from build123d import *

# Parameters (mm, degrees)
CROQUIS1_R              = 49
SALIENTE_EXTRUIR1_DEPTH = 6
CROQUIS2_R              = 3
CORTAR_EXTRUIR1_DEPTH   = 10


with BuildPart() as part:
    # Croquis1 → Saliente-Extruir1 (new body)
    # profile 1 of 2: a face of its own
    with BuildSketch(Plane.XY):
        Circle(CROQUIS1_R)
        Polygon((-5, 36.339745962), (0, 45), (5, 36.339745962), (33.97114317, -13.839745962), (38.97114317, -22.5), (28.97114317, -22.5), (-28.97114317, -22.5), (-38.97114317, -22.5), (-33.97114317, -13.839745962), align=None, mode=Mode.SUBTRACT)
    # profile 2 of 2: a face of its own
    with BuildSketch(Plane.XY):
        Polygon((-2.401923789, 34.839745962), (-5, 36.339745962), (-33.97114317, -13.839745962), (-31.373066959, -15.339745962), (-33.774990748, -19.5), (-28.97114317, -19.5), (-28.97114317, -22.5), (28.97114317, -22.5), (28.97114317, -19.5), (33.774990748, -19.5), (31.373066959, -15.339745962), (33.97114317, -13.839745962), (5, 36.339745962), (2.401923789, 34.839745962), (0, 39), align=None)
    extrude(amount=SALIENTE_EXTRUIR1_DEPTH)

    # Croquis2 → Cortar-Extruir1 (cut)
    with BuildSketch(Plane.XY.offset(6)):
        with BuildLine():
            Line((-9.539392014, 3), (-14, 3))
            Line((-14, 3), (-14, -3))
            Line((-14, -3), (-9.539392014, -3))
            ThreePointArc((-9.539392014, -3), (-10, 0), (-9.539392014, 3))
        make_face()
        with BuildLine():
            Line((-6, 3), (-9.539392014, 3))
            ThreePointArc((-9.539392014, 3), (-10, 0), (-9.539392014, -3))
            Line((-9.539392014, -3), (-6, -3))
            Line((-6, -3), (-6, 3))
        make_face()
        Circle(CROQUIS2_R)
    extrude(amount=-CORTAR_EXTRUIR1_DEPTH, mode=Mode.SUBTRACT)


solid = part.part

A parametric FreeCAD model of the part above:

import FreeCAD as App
import Part
import Sketcher

V = App.Vector
Q = App.Units.Quantity


def add_polygon(sketch, points):
    """Adds a closed chain of lines whose ends are joined by coincident constraints."""
    first, n = sketch.GeometryCount, len(points)
    for a, b in zip(points, points[1:] + points[:1]):
        sketch.addGeometry(Part.LineSegment(App.Vector(*a, 0), App.Vector(*b, 0)), False)
    for i in range(n):
        sketch.addConstraint(Sketcher.Constraint("Coincident", first + i, 2, first + (i + 1) % n, 1))

doc = App.newDocument("Part")
body = doc.addObject("PartDesign::Body", "Body")

# Sketch on XY plane
sketch1 = body.newObject("Sketcher::SketchObject", "Sketch")
sketch1.AttachmentSupport = (doc.getObject("XY_Plane"), [""])
sketch1.MapMode = "FlatFace"
sketch1.addGeometry(Part.Circle(V(0, 0, 0), V(0, 0, 1), 49), False)  # 0
add_polygon(sketch1, [(-5, 36.3), (0, 45), (5, 36.3), (2.4, 34.8), (0, 39), (-2.4, 34.8)])  # lines 1-6
add_polygon(sketch1, [(34, -13.8), (39, -22.5), (29, -22.5), (29, -19.5), (33.8, -19.5), (31.4, -15.3)])  # lines 7-12
add_polygon(sketch1, [(-29, -22.5), (-39, -22.5), (-34, -13.8), (-31.4, -15.3), (-33.8, -19.5), (-29, -19.5)])  # lines 13-18
sketch1.addConstraint(Sketcher.Constraint("Horizontal", 8))
sketch1.addConstraint(Sketcher.Constraint("Vertical", 9))
sketch1.addConstraint(Sketcher.Constraint("Horizontal", 10))
sketch1.addConstraint(Sketcher.Constraint("Horizontal", 13))
sketch1.addConstraint(Sketcher.Constraint("Horizontal", 17))
sketch1.addConstraint(Sketcher.Constraint("Vertical", 18))
sketch1.addConstraint(Sketcher.Constraint("Coincident", 0, 3, -1, 1))
sketch1.addConstraint(Sketcher.Constraint("Symmetric", 3, 2, 5, 2, -2))
sketch1.addConstraint(Sketcher.Constraint("Symmetric", 2, 2, 6, 2, -2))
sketch1.addConstraint(Sketcher.Constraint("Symmetric", 7, 2, 13, 2, -2))
sketch1.addConstraint(Sketcher.Constraint("Symmetric", 12, 2, 14, 2, -2))
sketch1.addConstraint(Sketcher.Constraint("Symmetric", 11, 2, 15, 2, -2))
sketch1.addConstraint(Sketcher.Constraint("Symmetric", 10, 2, 16, 2, -2))
sketch1.addConstraint(Sketcher.Constraint("PointOnObject", 1, 2, -2))
sketch1.addConstraint(Sketcher.Constraint("PointOnObject", 4, 2, -2))
sketch1.addConstraint(Sketcher.Constraint("Perpendicular", 2, 3))
sketch1.addConstraint(Sketcher.Constraint("Perpendicular", 3, 4))
sketch1.addConstraint(Sketcher.Constraint("Parallel", 4, 7))
sketch1.addConstraint(Sketcher.Constraint("Parallel", 7, 11))
sketch1.addConstraint(Sketcher.Constraint("Perpendicular", 11, 12))
sketch1.addConstraint(Sketcher.Constraint("Equal", 8, 13))
sketch1.addConstraint(Sketcher.Constraint("Equal", 2, 7))
sketch1.addConstraint(Sketcher.Constraint("Equal", 5, 11))
sketch1.addConstraint(Sketcher.Constraint("Equal", 6, 12))
sketch1.addConstraint(Sketcher.Constraint("Diameter", 0, 98.0))
sketch1.addConstraint(Sketcher.Constraint("DistanceX", 8, 2, 8, 1, 10.0))
sketch1.addConstraint(Sketcher.Constraint("DistanceY", 9, 1, 9, 2, 3.0))
sketch1.addConstraint(Sketcher.Constraint("Angle", 1, Q("60 deg")))
sketch1.addConstraint(Sketcher.Constraint("Distance", 1, 10.0))
sketch1.addConstraint(Sketcher.Constraint("DistanceY", -1, 1, 1, 2, 45.0))
sketch1.addConstraint(Sketcher.Constraint("DistanceY", 7, 2, -1, 1, 22.5))
sketch1.addConstraint(Sketcher.Constraint("DistanceX", -1, 1, 10, 2, 33.774991))
pad1 = body.newObject("PartDesign::Pad", "Pad")
pad1.Profile = sketch1
pad1.Length = 6

# Sketch on XY plane
sketch2 = body.newObject("Sketcher::SketchObject", "Sketch001")
sketch2.AttachmentSupport = (doc.getObject("XY_Plane"), [""])
sketch2.MapMode = "FlatFace"
sketch2.AttachmentOffset = App.Placement(V(0, 0, 6), App.Rotation())
add_polygon(sketch2, [(-14, 3), (-14, -3), (-6, -3), (-6, 3)])  # lines 0-3
sketch2.addGeometry(Part.Circle(V(0, 0, 0), V(0, 0, 1), 3), False)  # 4
sketch2.addConstraint(Sketcher.Constraint("Vertical", 0))
sketch2.addConstraint(Sketcher.Constraint("Horizontal", 1))
sketch2.addConstraint(Sketcher.Constraint("Vertical", 2))
sketch2.addConstraint(Sketcher.Constraint("Horizontal", 3))
sketch2.addConstraint(Sketcher.Constraint("Coincident", 4, 3, -1, 1))
sketch2.addConstraint(Sketcher.Constraint("Diameter", 4, 6.0))
sketch2.addConstraint(Sketcher.Constraint("DistanceX", 1, 1, 1, 2, 8.0))
sketch2.addConstraint(Sketcher.Constraint("DistanceY", 0, 2, 0, 1, 6.0))
sketch2.addConstraint(Sketcher.Constraint("DistanceX", 0, 2, -1, 1, 14.0))
sketch2.addConstraint(Sketcher.Constraint("DistanceY", 0, 2, -1, 1, 3.0))
pocket1 = body.newObject("PartDesign::Pocket", "Pocket")
pocket1.Profile = sketch2
pocket1.Length = 10

doc.recompute()
